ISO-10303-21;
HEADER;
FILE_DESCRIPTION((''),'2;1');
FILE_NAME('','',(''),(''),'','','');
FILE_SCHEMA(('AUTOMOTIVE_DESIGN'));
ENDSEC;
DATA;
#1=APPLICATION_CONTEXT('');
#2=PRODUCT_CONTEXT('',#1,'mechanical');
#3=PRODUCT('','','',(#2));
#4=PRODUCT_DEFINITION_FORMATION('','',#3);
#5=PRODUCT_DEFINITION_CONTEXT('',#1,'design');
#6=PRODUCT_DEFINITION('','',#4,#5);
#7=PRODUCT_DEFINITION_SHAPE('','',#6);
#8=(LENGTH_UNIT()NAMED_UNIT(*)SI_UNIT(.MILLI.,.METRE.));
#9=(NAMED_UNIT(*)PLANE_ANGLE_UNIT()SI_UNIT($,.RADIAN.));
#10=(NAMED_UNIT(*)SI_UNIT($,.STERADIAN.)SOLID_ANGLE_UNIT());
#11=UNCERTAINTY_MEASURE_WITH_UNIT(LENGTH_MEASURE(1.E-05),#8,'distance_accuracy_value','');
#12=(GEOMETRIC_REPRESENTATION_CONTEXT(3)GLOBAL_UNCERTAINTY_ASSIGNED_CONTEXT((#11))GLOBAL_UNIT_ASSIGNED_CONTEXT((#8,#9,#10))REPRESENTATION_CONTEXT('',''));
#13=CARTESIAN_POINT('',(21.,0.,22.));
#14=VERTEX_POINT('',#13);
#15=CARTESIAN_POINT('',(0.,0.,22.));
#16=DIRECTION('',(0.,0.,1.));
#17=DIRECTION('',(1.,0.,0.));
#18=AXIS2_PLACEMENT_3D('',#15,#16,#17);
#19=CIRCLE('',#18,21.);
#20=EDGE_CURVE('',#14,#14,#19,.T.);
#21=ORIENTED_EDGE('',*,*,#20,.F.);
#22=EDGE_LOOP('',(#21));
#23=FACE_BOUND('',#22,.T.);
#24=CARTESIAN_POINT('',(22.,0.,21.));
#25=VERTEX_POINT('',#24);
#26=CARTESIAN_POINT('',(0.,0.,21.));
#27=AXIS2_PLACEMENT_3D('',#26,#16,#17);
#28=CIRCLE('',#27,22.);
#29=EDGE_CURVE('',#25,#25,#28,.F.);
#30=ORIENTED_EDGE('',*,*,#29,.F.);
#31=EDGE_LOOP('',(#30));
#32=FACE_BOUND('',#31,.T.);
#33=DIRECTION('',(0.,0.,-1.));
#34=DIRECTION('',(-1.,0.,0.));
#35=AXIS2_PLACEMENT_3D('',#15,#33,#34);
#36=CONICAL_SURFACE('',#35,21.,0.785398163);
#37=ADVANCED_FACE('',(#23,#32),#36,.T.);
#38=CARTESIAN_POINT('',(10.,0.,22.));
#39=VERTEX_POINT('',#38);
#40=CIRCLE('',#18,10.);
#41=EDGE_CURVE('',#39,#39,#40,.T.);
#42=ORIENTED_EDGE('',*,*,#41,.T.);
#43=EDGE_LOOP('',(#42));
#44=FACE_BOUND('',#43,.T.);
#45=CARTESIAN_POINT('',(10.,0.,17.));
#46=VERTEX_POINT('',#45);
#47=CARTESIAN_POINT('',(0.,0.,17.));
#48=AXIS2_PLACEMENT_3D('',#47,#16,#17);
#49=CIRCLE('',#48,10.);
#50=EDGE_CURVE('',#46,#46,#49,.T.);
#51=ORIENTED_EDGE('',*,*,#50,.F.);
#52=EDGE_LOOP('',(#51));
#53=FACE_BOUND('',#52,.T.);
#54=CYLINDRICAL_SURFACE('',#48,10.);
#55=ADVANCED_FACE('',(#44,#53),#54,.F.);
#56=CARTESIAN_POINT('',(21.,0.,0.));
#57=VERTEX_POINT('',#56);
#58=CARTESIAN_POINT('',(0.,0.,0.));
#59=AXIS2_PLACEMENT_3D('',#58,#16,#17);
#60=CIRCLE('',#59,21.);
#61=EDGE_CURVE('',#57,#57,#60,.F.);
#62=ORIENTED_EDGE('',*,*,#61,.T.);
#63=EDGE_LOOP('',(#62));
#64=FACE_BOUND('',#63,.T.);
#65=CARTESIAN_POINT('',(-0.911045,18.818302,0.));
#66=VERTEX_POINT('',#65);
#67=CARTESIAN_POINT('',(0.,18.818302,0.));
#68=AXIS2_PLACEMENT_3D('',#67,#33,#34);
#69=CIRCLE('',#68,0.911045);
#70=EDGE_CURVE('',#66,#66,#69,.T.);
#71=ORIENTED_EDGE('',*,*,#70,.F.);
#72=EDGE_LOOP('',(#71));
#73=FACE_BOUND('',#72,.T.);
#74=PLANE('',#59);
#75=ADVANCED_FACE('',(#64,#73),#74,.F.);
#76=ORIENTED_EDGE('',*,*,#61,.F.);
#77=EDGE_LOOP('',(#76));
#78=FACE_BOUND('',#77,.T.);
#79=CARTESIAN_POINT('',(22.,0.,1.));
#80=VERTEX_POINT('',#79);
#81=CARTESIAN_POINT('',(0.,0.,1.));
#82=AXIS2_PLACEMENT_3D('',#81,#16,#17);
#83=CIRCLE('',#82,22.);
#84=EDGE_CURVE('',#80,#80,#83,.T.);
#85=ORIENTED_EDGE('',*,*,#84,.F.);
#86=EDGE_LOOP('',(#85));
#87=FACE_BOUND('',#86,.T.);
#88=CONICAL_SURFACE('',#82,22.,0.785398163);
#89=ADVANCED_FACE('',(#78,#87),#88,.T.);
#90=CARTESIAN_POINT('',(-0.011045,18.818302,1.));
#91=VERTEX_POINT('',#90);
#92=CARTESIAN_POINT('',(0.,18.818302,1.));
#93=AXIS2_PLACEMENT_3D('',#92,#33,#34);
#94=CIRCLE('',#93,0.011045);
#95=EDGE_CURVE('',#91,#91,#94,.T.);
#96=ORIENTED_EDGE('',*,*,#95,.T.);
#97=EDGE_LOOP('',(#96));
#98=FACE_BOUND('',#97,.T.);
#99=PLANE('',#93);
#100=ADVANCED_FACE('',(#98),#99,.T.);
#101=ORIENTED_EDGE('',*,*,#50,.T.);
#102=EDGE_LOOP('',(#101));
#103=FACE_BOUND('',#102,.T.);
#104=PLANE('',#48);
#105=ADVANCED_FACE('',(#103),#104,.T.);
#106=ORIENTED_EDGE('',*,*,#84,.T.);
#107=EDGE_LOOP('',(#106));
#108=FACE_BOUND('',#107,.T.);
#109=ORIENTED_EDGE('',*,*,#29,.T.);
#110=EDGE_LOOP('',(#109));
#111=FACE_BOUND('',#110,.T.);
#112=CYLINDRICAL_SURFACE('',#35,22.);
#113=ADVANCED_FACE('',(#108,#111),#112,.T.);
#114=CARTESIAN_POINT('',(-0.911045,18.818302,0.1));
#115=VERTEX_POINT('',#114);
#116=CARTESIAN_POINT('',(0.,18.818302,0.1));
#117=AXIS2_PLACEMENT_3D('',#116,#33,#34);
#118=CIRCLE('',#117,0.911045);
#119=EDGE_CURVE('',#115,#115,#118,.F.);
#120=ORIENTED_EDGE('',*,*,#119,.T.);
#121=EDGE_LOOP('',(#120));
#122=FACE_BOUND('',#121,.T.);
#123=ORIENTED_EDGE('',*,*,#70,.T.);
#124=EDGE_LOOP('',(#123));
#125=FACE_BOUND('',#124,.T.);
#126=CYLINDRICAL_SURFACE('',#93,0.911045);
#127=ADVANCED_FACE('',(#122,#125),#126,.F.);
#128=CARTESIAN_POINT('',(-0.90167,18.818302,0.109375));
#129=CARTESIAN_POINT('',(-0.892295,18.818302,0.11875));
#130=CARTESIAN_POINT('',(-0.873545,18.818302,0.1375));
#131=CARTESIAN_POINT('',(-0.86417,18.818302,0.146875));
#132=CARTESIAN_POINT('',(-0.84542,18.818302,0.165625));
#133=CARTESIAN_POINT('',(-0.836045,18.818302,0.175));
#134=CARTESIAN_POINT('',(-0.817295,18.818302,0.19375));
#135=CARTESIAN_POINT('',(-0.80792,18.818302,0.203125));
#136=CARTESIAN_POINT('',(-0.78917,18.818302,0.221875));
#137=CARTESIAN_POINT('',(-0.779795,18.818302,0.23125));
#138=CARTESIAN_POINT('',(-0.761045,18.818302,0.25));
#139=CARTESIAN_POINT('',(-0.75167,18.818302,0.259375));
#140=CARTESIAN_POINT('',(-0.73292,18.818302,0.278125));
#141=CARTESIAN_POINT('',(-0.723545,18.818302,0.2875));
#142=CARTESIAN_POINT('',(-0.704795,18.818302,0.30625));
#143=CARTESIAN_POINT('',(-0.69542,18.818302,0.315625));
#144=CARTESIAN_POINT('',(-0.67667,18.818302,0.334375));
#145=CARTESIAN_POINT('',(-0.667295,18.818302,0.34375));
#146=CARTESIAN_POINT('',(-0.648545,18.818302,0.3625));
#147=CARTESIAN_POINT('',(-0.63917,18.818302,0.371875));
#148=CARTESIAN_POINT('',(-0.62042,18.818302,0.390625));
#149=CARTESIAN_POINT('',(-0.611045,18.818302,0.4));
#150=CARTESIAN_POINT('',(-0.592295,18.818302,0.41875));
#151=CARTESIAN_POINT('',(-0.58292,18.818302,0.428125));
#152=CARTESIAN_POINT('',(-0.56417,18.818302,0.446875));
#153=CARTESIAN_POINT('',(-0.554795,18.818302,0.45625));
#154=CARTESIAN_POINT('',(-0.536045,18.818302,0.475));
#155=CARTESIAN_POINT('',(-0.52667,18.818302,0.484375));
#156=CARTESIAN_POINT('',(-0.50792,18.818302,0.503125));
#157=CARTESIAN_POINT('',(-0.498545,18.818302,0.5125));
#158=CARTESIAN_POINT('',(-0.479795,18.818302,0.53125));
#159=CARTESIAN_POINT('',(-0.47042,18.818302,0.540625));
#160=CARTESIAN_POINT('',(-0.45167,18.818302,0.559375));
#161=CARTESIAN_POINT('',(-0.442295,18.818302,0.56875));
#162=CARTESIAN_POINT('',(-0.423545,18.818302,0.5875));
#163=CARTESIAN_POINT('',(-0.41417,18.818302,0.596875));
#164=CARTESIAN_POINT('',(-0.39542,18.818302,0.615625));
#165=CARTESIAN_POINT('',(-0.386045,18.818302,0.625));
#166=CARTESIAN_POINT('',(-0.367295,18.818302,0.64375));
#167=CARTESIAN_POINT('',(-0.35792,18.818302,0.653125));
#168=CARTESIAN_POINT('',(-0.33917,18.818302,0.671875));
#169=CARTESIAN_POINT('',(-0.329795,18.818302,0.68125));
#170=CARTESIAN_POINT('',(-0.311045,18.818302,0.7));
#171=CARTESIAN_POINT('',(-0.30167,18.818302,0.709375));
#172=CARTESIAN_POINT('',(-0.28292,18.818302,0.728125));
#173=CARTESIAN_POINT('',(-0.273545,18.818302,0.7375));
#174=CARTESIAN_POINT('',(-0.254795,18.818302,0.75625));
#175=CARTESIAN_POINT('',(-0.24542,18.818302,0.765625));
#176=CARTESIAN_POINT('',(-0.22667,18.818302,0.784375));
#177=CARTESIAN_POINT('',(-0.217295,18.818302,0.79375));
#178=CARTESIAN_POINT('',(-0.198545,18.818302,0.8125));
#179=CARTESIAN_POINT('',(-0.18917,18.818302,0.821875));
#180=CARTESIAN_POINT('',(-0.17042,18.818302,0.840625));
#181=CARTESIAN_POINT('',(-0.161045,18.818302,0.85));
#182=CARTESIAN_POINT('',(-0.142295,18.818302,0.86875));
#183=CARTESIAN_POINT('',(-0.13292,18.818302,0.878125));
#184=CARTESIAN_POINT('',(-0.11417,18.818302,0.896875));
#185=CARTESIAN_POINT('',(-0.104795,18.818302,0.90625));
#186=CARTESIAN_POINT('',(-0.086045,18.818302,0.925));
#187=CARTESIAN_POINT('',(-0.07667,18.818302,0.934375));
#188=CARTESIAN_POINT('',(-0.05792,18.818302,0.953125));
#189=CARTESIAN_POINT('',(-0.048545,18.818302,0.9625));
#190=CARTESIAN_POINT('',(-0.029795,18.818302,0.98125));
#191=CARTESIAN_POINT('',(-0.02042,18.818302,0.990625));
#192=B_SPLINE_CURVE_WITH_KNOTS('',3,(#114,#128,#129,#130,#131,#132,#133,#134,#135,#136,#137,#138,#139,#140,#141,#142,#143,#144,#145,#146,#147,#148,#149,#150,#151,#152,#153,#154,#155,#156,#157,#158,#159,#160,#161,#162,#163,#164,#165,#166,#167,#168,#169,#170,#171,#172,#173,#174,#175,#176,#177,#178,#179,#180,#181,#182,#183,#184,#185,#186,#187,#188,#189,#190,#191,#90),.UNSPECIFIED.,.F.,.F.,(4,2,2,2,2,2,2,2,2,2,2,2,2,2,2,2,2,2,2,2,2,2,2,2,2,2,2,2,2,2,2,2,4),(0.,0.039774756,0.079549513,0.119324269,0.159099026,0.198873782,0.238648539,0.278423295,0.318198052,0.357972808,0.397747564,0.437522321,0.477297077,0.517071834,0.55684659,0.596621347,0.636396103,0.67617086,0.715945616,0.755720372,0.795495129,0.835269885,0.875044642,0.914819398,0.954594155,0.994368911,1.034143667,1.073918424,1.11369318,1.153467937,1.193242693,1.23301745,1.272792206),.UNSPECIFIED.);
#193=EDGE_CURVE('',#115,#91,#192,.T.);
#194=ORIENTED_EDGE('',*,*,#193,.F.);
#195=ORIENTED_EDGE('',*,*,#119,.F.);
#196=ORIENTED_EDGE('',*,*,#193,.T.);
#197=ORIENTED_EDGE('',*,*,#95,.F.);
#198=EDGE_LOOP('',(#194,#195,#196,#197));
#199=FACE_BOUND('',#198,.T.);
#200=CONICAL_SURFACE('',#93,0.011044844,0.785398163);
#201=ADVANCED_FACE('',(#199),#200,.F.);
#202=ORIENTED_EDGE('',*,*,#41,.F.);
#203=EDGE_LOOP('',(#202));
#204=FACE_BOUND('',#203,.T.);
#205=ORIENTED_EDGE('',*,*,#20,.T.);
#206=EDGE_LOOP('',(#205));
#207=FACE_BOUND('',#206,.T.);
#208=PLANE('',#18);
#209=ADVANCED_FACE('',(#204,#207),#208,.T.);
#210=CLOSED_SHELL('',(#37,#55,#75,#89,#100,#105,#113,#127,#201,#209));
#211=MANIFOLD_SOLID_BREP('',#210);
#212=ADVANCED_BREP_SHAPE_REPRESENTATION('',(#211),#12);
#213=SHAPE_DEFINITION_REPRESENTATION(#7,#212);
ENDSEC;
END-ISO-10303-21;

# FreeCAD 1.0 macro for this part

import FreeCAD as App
import Part
import Sketcher

V = App.Vector


def edges_at(feature, points):
    """Names of the edges that pass closest to the given points."""
    edges = feature.Shape.Edges
    near = lambda p: min(range(len(edges)), key=lambda i: edges[i].distToShape(Part.Vertex(*p))[0])
    return sorted({f"Edge{near(p) + 1}" for p in points})

doc = App.newDocument("Part")
body = doc.addObject("PartDesign::Body", "Body")

sketch1 = body.newObject("Sketcher::SketchObject", "Sketch")
sketch1.AttachmentSupport = (doc.getObject("XY_Plane"), [""])
sketch1.MapMode = "FlatFace"
sketch1.addGeometry(Part.Circle(V(0, 0, 0), V(0, 0, 1), 22), False)
sketch1.addConstraint([
    Sketcher.Constraint("Coincident", 0, 3, -1, 1),
    Sketcher.Constraint("Diameter", 0, 44.0),
])
pad1 = body.newObject("PartDesign::Pad", "Pad")
pad1.Profile = sketch1
pad1.Length = 22

sketch2 = body.newObject("Sketcher::SketchObject", "Sketch001")
sketch2.AttachmentSupport = (doc.getObject("XY_Plane"), [""])
sketch2.MapMode = "FlatFace"
sketch2.AttachmentOffset = App.Placement(V(0, 0, 22), App.Rotation())
sketch2.addGeometry(Part.Circle(V(0, 0, 0), V(0, 0, 1), 10), False)
sketch2.addConstraint([
    Sketcher.Constraint("Coincident", 0, 3, -1, 1),
    Sketcher.Constraint("Diameter", 0, 20.0),
])
pocket1 = body.newObject("PartDesign::Pocket", "Pocket")
pocket1.Profile = sketch2
pocket1.Length = 5
doc.recompute()

chamfer = body.newObject("PartDesign::Chamfer", "Chamfer")
chamfer.Base = (pocket1, edges_at(pocket1, [(-22, 0, 0), (-22, 0, 22)]))
chamfer.Size = 1

sketch3 = body.newObject("Sketcher::SketchObject", "Sketch002")
sketch3.AttachmentSupport = (doc.getObject("XY_Plane"), [""])
sketch3.MapMode = "FlatFace"
sketch3.addGeometry(Part.Circle(V(0, 18.8, 0), V(0, 0, 1), 0.9), False)
sketch3.addConstraint([
    Sketcher.Constraint("PointOnObject", 0, 3, -2),
    Sketcher.Constraint("Diameter", 0, 1.82209),
    Sketcher.Constraint("DistanceY", -1, 1, 0, 3, 18.818302),
])
pocket2 = body.newObject("PartDesign::Pocket", "Pocket001")
pocket2.Profile = sketch3
pocket2.Length = 1
pocket2.Reversed = True
doc.recompute()

chamfer2 = body.newObject("PartDesign::Chamfer", "Chamfer001")
chamfer2.Base = (pocket2, edges_at(pocket2, [(0.911, 18.818, 1)]))
chamfer2.Size = 0.9

doc.recompute()
